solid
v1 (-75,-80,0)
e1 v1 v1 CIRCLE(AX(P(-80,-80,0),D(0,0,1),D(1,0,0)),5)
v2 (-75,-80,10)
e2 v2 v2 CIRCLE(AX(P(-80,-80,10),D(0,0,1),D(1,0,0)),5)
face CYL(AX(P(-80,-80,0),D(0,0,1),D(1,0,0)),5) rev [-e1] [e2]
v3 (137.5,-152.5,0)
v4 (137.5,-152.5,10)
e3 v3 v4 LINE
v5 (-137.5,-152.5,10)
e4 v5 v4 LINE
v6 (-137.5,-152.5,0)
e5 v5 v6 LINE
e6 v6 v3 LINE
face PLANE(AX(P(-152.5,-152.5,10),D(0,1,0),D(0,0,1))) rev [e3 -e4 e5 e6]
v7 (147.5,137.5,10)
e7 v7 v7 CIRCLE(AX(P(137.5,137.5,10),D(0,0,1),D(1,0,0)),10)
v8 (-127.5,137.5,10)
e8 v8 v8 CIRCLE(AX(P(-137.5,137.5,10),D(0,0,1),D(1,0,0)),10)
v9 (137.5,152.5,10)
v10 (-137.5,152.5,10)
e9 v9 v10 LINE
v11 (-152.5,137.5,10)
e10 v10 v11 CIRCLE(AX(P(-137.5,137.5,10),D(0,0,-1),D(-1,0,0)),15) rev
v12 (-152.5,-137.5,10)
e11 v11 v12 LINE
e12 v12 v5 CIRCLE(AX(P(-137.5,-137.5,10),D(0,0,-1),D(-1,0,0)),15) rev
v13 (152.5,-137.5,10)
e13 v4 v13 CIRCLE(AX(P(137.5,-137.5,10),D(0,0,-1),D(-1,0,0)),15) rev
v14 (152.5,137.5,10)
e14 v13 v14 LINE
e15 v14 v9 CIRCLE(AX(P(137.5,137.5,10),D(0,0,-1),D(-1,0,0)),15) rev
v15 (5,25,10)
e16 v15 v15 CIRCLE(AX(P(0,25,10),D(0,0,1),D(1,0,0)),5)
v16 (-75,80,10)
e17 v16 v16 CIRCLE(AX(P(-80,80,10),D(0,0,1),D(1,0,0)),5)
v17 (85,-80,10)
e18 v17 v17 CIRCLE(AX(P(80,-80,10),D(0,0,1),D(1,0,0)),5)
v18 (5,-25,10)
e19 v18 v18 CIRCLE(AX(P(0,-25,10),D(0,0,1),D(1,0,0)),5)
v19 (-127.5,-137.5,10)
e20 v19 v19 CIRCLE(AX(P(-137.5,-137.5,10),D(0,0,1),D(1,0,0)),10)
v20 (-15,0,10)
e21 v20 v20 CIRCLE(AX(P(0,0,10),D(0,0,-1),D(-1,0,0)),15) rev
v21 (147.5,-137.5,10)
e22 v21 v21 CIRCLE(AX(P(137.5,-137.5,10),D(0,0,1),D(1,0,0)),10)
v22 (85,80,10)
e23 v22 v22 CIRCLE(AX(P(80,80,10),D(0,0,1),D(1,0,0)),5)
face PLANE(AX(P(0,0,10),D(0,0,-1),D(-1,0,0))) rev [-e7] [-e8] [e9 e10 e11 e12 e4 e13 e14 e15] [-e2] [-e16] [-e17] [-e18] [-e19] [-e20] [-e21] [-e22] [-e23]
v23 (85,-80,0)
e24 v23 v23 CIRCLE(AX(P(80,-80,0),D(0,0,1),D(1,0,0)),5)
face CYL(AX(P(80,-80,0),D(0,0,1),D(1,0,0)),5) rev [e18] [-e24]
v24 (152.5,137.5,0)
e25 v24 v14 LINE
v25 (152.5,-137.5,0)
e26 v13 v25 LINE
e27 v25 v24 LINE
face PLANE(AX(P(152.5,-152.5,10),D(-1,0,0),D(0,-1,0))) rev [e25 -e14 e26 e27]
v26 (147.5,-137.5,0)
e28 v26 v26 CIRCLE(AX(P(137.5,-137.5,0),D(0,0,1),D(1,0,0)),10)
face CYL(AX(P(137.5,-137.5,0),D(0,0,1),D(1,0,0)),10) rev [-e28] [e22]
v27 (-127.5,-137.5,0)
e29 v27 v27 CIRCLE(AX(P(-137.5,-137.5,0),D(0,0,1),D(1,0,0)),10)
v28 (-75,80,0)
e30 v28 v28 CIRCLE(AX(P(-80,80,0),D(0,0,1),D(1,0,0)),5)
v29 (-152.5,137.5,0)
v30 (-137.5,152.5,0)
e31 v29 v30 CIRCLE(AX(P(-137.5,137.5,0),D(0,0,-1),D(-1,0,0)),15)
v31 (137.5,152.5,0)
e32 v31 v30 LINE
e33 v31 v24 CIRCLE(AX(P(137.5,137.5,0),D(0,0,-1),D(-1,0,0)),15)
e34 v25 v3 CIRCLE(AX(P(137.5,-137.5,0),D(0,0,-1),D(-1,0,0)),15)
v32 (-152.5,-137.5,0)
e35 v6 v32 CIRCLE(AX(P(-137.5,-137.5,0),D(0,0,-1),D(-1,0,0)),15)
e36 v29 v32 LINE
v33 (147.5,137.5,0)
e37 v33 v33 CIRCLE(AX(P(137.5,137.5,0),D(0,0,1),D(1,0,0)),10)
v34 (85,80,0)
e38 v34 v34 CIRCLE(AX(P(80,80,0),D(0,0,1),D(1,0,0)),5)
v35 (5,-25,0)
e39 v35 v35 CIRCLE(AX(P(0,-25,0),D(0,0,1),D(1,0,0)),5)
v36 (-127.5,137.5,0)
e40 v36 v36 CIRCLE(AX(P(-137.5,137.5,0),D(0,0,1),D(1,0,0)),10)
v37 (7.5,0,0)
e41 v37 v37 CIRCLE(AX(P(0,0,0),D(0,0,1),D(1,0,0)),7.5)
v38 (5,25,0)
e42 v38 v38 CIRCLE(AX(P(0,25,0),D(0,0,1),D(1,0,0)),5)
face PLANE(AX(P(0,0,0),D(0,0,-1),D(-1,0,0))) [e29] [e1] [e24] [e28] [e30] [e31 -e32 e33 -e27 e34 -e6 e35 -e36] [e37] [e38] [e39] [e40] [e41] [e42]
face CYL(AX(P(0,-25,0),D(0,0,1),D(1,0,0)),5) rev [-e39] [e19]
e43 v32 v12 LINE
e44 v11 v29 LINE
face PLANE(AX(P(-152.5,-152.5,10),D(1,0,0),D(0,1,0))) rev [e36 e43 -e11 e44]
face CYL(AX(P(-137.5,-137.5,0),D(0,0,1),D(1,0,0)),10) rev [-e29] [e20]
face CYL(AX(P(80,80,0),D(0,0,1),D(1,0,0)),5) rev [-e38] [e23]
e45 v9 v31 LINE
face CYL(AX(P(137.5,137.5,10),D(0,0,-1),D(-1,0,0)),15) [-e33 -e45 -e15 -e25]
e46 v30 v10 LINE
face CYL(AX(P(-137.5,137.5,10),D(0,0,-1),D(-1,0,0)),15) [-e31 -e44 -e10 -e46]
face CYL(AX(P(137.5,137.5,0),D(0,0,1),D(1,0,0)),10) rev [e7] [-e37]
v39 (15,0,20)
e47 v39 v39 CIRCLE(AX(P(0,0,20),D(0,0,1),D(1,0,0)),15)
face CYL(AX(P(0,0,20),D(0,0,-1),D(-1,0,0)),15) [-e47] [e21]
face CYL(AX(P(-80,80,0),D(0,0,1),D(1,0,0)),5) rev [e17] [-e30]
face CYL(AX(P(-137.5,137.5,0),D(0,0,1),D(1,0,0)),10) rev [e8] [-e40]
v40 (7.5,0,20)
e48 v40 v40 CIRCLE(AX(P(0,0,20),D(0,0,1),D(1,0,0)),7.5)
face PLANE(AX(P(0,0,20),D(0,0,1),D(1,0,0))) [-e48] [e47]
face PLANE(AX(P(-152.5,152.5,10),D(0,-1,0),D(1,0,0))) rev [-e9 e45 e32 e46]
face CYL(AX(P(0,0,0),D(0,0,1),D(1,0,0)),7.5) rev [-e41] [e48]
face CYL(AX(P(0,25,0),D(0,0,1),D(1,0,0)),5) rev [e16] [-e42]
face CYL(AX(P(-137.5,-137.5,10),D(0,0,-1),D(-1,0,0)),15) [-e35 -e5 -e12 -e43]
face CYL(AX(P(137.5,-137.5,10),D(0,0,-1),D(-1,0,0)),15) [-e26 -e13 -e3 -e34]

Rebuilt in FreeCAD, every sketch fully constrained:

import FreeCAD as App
import Part
import Sketcher

V = App.Vector
Q = App.Units.Quantity


def edges_at(feature, points):
    """Names of the edges that pass closest to the given points."""
    edges = feature.Shape.Edges
    near = lambda p: min(range(len(edges)), key=lambda i: edges[i].distToShape(Part.Vertex(*p))[0])
    return sorted({f"Edge{near(p) + 1}" for p in points})

doc = App.newDocument("Part")
body = doc.addObject("PartDesign::Body", "Body")

# Sketch on XY plane
sketch1 = doc.addObject("Sketcher::SketchObject", "Sketch")
body.addObject(sketch1)
sketch1.AttachmentSupport = (doc.XY_Plane, [""])
sketch1.MapMode = "FlatFace"
sketch1.addGeometry([
    Part.LineSegment(V(-152, 152, 0), V(-152, -152, 0)),
    Part.LineSegment(V(-152, -152, 0), V(152, -152, 0)),
    Part.LineSegment(V(152, -152, 0), V(152, 152, 0)),
    Part.LineSegment(V(152, 152, 0), V(-152, 152, 0)),
], False)
sketch1.addConstraint([
    Sketcher.Constraint("Coincident", 0, 2, 1, 1),
    Sketcher.Constraint("Coincident", 1, 2, 2, 1),
    Sketcher.Constraint("Coincident", 2, 2, 3, 1),
    Sketcher.Constraint("Coincident", 3, 2, 0, 1),
    Sketcher.Constraint("Vertical", 0),
    Sketcher.Constraint("Horizontal", 1),
    Sketcher.Constraint("Vertical", 2),
    Sketcher.Constraint("Horizontal", 3),
    Sketcher.Constraint("Symmetric", 0, 2, 2, 2, -1, 1),
    Sketcher.Constraint("Equal", 3, 0),
    Sketcher.Constraint("DistanceX", 1, 1, 1, 2, Q("305 mm")),
])
pad1 = doc.addObject("PartDesign::Pad", "Pad")
body.addObject(pad1)
pad1.Profile = sketch1
pad1.Length = 10

# Sketch on XY plane
sketch2 = doc.addObject("Sketcher::SketchObject", "Sketch001")
body.addObject(sketch2)
sketch2.AttachmentSupport = (doc.XY_Plane, [""])
sketch2.MapMode = "FlatFace"
sketch2.AttachmentOffset = App.Placement(V(0, 0, 10), App.Rotation())
sketch2.addGeometry([
    Part.Circle(V(138, 138, 0), V(0, 0, 1), 10),
    Part.Circle(V(138, -138, 0), V(0, 0, 1), 10),
    Part.Circle(V(-138, -138, 0), V(0, 0, 1), 10),
    Part.Circle(V(-138, 138, 0), V(0, 0, 1), 10),
], False)
sketch2.addConstraint([
    Sketcher.Constraint("Equal", 0, 1),
    Sketcher.Constraint("Equal", 1, 2),
    Sketcher.Constraint("Equal", 2, 3),
    Sketcher.Constraint("Symmetric", 0, 3, 2, 3, -1, 1),
    Sketcher.Constraint("Symmetric", 1, 3, 3, 3, -1, 1),
    Sketcher.Constraint("Symmetric", 1, 3, 2, 3, -2),
    Sketcher.Constraint("Diameter", 0, Q("20 mm")),
    Sketcher.Constraint("DistanceY", 1, 3, 0, 3, Q("275 mm")),
    Sketcher.Constraint("DistanceX", 2, 3, 1, 3, Q("275 mm")),
])
pocket1 = doc.addObject("PartDesign::Pocket", "Pocket")
body.addObject(pocket1)
pocket1.Profile = sketch2
pocket1.Length = 10
doc.recompute()

fillet = doc.addObject("PartDesign::Fillet", "Fillet")
body.addObject(fillet)
fillet.Base = (pocket1, edges_at(pocket1, [
    (-152.5, 152.5, 5),
    (152.5, 152.5, 5),
    (152.5, -152.5, 5),
    (-152.5, -152.5, 5),
]))
fillet.Radius = 15

# Sketch on XY plane
sketch3 = doc.addObject("Sketcher::SketchObject", "Sketch002")
body.addObject(sketch3)
sketch3.AttachmentSupport = (doc.XY_Plane, [""])
sketch3.MapMode = "FlatFace"
sketch3.AttachmentOffset = App.Placement(V(0, 0, 10), App.Rotation())
sketch3.addGeometry([
    Part.Circle(V(80, 80, 0), V(0, 0, 1), 5),
    Part.Circle(V(80, -80, 0), V(0, 0, 1), 5),
    Part.Circle(V(-80, -80, 0), V(0, 0, 1), 5),
    Part.Circle(V(-80, 80, 0), V(0, 0, 1), 5),
], False)
sketch3.addConstraint([
    Sketcher.Constraint("Equal", 0, 1),
    Sketcher.Constraint("Equal", 1, 2),
    Sketcher.Constraint("Equal", 2, 3),
    Sketcher.Constraint("Symmetric", 0, 3, 2, 3, -1, 1),
    Sketcher.Constraint("Symmetric", 1, 3, 3, 3, -1, 1),
    Sketcher.Constraint("Symmetric", 1, 3, 2, 3, -2),
    Sketcher.Constraint("Diameter", 0, Q("10 mm")),
    Sketcher.Constraint("DistanceX", -1, 1, 0, 3, Q("80 mm")),
    Sketcher.Constraint("DistanceY", -1, 1, 0, 3, Q("80 mm")),
])
pocket2 = doc.addObject("PartDesign::Pocket", "Pocket001")
body.addObject(pocket2)
pocket2.Profile = sketch3
pocket2.Length = 10

# Sketch on XY plane
sketch4 = doc.addObject("Sketcher::SketchObject", "Sketch003")
body.addObject(sketch4)
sketch4.AttachmentSupport = (doc.XY_Plane, [""])
sketch4.MapMode = "FlatFace"
sketch4.AttachmentOffset = App.Placement(V(0, 0, 10), App.Rotation())
sketch4.addGeometry(Part.Circle(V(0, 0, 0), V(0, 0, 1), 15), False)
sketch4.addConstraint([
    Sketcher.Constraint("Coincident", 0, 3, -1, 1),
    Sketcher.Constraint("Diameter", 0, Q("30 mm")),
])
pad2 = doc.addObject("PartDesign::Pad", "Pad001")
body.addObject(pad2)
pad2.Profile = sketch4
pad2.Length = 10

# Sketch on XY plane
sketch5 = doc.addObject("Sketcher::SketchObject", "Sketch004")
body.addObject(sketch5)
sketch5.AttachmentSupport = (doc.XY_Plane, [""])
sketch5.MapMode = "FlatFace"
sketch5.AttachmentOffset = App.Placement(V(0, 0, 20), App.Rotation())
sketch5.addGeometry(Part.Circle(V(0, 0, 0), V(0, 0, 1), 8), False)
sketch5.addConstraint([
    Sketcher.Constraint("Coincident", 0, 3, -1, 1),
    Sketcher.Constraint("Diameter", 0, Q("15 mm")),
])
pocket3 = doc.addObject("PartDesign::Pocket", "Pocket002")
body.addObject(pocket3)
pocket3.Profile = sketch5
pocket3.Length = 20

# Sketch on XY plane
sketch6 = doc.addObject("Sketcher::SketchObject", "Sketch005")
body.addObject(sketch6)
sketch6.AttachmentSupport = (doc.XY_Plane, [""])
sketch6.MapMode = "FlatFace"
sketch6.AttachmentOffset = App.Placement(V(0, 0, 10), App.Rotation())
sketch6.addGeometry([
    Part.Circle(V(0, 25, 0), V(0, 0, 1), 5),
    Part.Circle(V(0, -25, 0), V(0, 0, 1), 5),
], False)
sketch6.addConstraint([
    Sketcher.Constraint("Equal", 0, 1),
    Sketcher.Constraint("Symmetric", 0, 3, 1, 3, -1, 1),
    Sketcher.Constraint("PointOnObject", 0, 3, -2),
    Sketcher.Constraint("Diameter", 0, Q("10 mm")),
    Sketcher.Constraint("DistanceY", -1, 1, 0, 3, Q("25 mm")),
])
pocket4 = doc.addObject("PartDesign::Pocket", "Pocket003")
body.addObject(pocket4)
pocket4.Profile = sketch6
pocket4.Length = 10

doc.recompute()
